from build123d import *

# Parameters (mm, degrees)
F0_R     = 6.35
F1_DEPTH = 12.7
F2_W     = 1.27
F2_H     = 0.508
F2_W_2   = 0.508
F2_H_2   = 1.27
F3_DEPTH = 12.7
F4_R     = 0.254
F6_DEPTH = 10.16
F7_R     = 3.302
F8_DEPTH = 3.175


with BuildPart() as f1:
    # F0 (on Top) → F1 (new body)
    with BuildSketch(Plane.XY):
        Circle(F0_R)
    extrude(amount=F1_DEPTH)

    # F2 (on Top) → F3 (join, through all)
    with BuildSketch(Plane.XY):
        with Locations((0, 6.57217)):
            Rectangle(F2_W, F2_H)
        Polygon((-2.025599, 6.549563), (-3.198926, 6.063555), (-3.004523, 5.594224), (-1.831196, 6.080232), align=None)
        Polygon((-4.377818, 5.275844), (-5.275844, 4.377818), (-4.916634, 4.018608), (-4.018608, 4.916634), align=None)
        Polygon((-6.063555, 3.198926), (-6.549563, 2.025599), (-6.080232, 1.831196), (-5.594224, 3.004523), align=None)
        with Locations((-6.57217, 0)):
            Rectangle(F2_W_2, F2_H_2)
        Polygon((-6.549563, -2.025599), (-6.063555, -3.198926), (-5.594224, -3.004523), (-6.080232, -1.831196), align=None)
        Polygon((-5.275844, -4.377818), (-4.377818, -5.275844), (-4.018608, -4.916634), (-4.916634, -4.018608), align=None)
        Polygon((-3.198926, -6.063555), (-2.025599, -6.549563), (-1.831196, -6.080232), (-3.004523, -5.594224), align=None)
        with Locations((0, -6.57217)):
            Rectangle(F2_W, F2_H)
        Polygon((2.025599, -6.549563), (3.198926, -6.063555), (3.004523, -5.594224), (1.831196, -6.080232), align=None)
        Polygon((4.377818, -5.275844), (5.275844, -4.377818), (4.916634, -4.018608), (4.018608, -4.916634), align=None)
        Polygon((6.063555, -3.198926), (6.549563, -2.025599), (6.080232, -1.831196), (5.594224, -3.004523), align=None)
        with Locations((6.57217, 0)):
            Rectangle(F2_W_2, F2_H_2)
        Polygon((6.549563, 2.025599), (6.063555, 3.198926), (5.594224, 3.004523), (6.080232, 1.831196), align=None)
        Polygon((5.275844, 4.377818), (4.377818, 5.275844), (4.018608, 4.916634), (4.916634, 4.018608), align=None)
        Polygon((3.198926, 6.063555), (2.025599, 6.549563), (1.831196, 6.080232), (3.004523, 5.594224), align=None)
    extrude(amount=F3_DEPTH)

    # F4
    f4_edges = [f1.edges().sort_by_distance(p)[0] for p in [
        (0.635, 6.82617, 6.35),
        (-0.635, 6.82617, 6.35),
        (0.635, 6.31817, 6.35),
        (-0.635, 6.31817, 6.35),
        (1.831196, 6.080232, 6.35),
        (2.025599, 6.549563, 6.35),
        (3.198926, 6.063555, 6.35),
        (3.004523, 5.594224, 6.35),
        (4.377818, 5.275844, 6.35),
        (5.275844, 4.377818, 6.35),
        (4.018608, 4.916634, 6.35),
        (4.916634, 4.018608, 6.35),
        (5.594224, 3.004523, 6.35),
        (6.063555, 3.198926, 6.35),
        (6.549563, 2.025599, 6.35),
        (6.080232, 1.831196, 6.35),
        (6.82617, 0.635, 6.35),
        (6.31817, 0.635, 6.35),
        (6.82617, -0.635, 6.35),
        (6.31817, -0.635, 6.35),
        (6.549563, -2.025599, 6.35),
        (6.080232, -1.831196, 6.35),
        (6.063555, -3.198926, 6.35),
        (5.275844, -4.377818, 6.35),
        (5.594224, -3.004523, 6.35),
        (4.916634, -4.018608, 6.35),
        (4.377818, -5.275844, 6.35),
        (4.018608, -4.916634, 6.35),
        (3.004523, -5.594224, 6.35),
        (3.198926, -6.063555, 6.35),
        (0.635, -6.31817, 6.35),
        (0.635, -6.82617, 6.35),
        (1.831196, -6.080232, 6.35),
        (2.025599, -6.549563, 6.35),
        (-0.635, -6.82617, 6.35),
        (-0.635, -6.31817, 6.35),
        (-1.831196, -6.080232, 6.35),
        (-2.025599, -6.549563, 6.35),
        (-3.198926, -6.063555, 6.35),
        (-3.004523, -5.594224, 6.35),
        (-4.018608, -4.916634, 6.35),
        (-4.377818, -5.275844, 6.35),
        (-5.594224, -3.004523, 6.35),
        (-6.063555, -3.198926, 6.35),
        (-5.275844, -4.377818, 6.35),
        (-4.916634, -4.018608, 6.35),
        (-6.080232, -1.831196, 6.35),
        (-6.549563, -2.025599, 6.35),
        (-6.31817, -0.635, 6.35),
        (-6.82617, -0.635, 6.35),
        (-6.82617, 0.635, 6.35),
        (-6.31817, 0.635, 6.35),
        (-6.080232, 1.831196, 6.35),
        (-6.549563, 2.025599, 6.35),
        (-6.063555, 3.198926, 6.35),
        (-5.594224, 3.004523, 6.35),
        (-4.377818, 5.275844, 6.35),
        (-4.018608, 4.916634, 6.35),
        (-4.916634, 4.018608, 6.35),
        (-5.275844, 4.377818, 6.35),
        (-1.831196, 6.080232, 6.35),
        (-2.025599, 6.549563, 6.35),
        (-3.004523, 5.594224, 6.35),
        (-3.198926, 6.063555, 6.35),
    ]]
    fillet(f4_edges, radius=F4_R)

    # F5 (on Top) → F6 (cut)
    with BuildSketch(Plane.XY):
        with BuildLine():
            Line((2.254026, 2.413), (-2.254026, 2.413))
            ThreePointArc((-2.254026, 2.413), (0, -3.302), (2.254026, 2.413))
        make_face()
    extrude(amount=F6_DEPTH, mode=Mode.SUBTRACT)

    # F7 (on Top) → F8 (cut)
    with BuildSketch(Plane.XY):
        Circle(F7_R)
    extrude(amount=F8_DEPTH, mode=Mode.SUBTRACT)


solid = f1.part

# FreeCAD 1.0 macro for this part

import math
import FreeCAD as App
import Part
import Sketcher
from FreeCAD import Vector
Q = App.Units.Quantity


def edges_at(feature, points):
    """Names of the edges that pass closest to the given points."""
    edges = feature.Shape.Edges
    near = lambda p: min(range(len(edges)), key=lambda i: edges[i].distToShape(Part.Vertex(*p))[0])
    return sorted({f"Edge{near(p) + 1}" for p in points})


def add_polygon(sketch, points):
    """Adds a closed chain of lines whose ends are joined by coincident constraints."""
    first, n = sketch.GeometryCount, len(points)
    for a, b in zip(points, points[1:] + points[:1]):
        sketch.addGeometry(Part.LineSegment(App.Vector(*a, 0), App.Vector(*b, 0)), False)
    for i in range(n):
        sketch.addConstraint(Sketcher.Constraint("Coincident", first + i, 2, first + (i + 1) % n, 1))

doc = App.newDocument("Part")
body = doc.addObject("PartDesign::Body", "Body")

# Sketch on XY plane
sketch1 = doc.addObject("Sketcher::SketchObject", "Sketch")
body.addObject(sketch1)
sketch1.AttachmentSupport = (doc.XY_Plane, [""])
sketch1.MapMode = "FlatFace"
sketch1.addGeometry(Part.Circle(Vector(0, 0, 0), Vector(0, 0, 1), 6), False)
sketch1.addConstraint([
    Sketcher.Constraint("Coincident", 0, 3, -1, 1),
    Sketcher.Constraint("Diameter", 0, Q("0.5 in")),
])
pad1 = doc.addObject("PartDesign::Pad", "Pad")
body.addObject(pad1)
pad1.Profile = sketch1
pad1.Length = Q("0.5 in")

# Sketch on XY plane
sketch2 = doc.addObject("Sketcher::SketchObject", "Sketch001")
body.addObject(sketch2)
sketch2.AttachmentSupport = (doc.XY_Plane, [""])
sketch2.MapMode = "FlatFace"
add_polygon(sketch2, [(-0.6, 6.8), (-0.6, 6.3), (0.6, 6.3), (0.6, 6.8)])  # lines 0-3
add_polygon(sketch2, [(-2, 6.5), (-3.2, 6.1), (-3, 5.6), (-1.8, 6.1)])  # lines 4-7
add_polygon(sketch2, [(-4.4, 5.3), (-5.3, 4.4), (-4.9, 4), (-4, 4.9)])  # lines 8-11
add_polygon(sketch2, [(-6.1, 3.2), (-6.5, 2), (-6.1, 1.8), (-5.6, 3)])  # lines 12-15
add_polygon(sketch2, [(-6.8, 0.6), (-6.8, -0.6), (-6.3, -0.6), (-6.3, 0.6)])  # lines 16-19
add_polygon(sketch2, [(-6.5, -2), (-6.1, -3.2), (-5.6, -3), (-6.1, -1.8)])  # lines 20-23
add_polygon(sketch2, [(-5.3, -4.4), (-4.4, -5.3), (-4, -4.9), (-4.9, -4)])  # lines 24-27
add_polygon(sketch2, [(-3.2, -6.1), (-2, -6.5), (-1.8, -6.1), (-3, -5.6)])  # lines 28-31
add_polygon(sketch2, [(-0.6, -6.3), (-0.6, -6.8), (0.6, -6.8), (0.6, -6.3)])  # lines 32-35
add_polygon(sketch2, [(2, -6.5), (3.2, -6.1), (3, -5.6), (1.8, -6.1)])  # lines 36-39
add_polygon(sketch2, [(4.4, -5.3), (5.3, -4.4), (4.9, -4), (4, -4.9)])  # lines 40-43
add_polygon(sketch2, [(6.1, -3.2), (6.5, -2), (6.1, -1.8), (5.6, -3)])  # lines 44-47
add_polygon(sketch2, [(6.3, 0.6), (6.3, -0.6), (6.8, -0.6), (6.8, 0.6)])  # lines 48-51
add_polygon(sketch2, [(6.5, 2), (6.1, 3.2), (5.6, 3), (6.1, 1.8)])  # lines 52-55
add_polygon(sketch2, [(5.3, 4.4), (4.4, 5.3), (4, 4.9), (4.9, 4)])  # lines 56-59
add_polygon(sketch2, [(3.2, 6.1), (2, 6.5), (1.8, 6.1), (3, 5.6)])  # lines 60-63
sketch2.addConstraint([
    Sketcher.Constraint("Vertical", 0),
    Sketcher.Constraint("Horizontal", 1),
    Sketcher.Constraint("Vertical", 2),
    Sketcher.Constraint("Horizontal", 3),
    Sketcher.Constraint("Vertical", 16),
    Sketcher.Constraint("Horizontal", 17),
    Sketcher.Constraint("Vertical", 18),
    Sketcher.Constraint("Horizontal", 19),
    Sketcher.Constraint("Vertical", 32),
    Sketcher.Constraint("Horizontal", 33),
    Sketcher.Constraint("Vertical", 34),
    Sketcher.Constraint("Horizontal", 35),
    Sketcher.Constraint("Vertical", 48),
    Sketcher.Constraint("Horizontal", 49),
    Sketcher.Constraint("Vertical", 50),
    Sketcher.Constraint("Horizontal", 51),
    Sketcher.Constraint("Symmetric", 2, 2, 32, 2, -1, 1),
    Sketcher.Constraint("Symmetric", 0, 2, 34, 2, -1, 1),
    Sketcher.Constraint("Symmetric", 4, 2, 36, 2, -1, 1),
    Sketcher.Constraint("Symmetric", 5, 2, 37, 2, -1, 1),
    Sketcher.Constraint("Symmetric", 6, 2, 38, 2, -1, 1),
    Sketcher.Constraint("Symmetric", 7, 2, 39, 2, -1, 1),
    Sketcher.Constraint("Symmetric", 8, 2, 40, 2, -1, 1),
    Sketcher.Constraint("Symmetric", 9, 2, 41, 2, -1, 1),
    Sketcher.Constraint("Symmetric", 10, 2, 42, 2, -1, 1),
    Sketcher.Constraint("Symmetric", 11, 2, 43, 2, -1, 1),
    Sketcher.Constraint("Symmetric", 12, 2, 44, 2, -1, 1),
    Sketcher.Constraint("Symmetric", 13, 2, 45, 2, -1, 1),
    Sketcher.Constraint("Symmetric", 14, 2, 46, 2, -1, 1),
    Sketcher.Constraint("Symmetric", 15, 2, 47, 2, -1, 1),
    Sketcher.Constraint("Symmetric", 18, 2, 48, 2, -1, 1),
    Sketcher.Constraint("Symmetric", 16, 2, 50, 2, -1, 1),
    Sketcher.Constraint("Symmetric", 20, 2, 52, 2, -1, 1),
    Sketcher.Constraint("Symmetric", 21, 2, 53, 2, -1, 1),
    Sketcher.Constraint("Symmetric", 22, 2, 54, 2, -1, 1),
    Sketcher.Constraint("Symmetric", 23, 2, 55, 2, -1, 1),
    Sketcher.Constraint("Symmetric", 24, 2, 56, 2, -1, 1),
    Sketcher.Constraint("Symmetric", 25, 2, 57, 2, -1, 1),
    Sketcher.Constraint("Symmetric", 26, 2, 58, 2, -1, 1),
    Sketcher.Constraint("Symmetric", 27, 2, 59, 2, -1, 1),
    Sketcher.Constraint("Symmetric", 28, 2, 60, 2, -1, 1),
    Sketcher.Constraint("Symmetric", 29, 2, 61, 2, -1, 1),
    Sketcher.Constraint("Symmetric", 30, 2, 62, 2, -1, 1),
    Sketcher.Constraint("Symmetric", 31, 2, 63, 2, -1, 1),
    Sketcher.Constraint("Symmetric", 31, 2, 36, 2, -2),
    Sketcher.Constraint("Symmetric", 30, 2, 37, 2, -2),
    Sketcher.Constraint("Symmetric", 29, 2, 38, 2, -2),
    Sketcher.Constraint("Symmetric", 28, 2, 39, 2, -2),
    Sketcher.Constraint("Symmetric", 27, 2, 40, 2, -2),
    Sketcher.Constraint("Symmetric", 26, 2, 41, 2, -2),
    Sketcher.Constraint("Symmetric", 25, 2, 42, 2, -2),
    Sketcher.Constraint("Symmetric", 24, 2, 43, 2, -2),
    Sketcher.Constraint("Symmetric", 23, 2, 44, 2, -2),
    Sketcher.Constraint("Symmetric", 22, 2, 45, 2, -2),
    Sketcher.Constraint("Symmetric", 21, 2, 46, 2, -2),
    Sketcher.Constraint("Symmetric", 20, 2, 47, 2, -2),
    Sketcher.Constraint("Perpendicular", 4, 5),
    Sketcher.Constraint("Perpendicular", 5, 6),
    Sketcher.Constraint("Perpendicular", 6, 7),
    Sketcher.Constraint("Perpendicular", 8, 9),
    Sketcher.Constraint("Perpendicular", 9, 10),
    Sketcher.Constraint("Perpendicular", 10, 11),
    Sketcher.Constraint("Perpendicular", 12, 13),
    Sketcher.Constraint("Perpendicular", 13, 14),
    Sketcher.Constraint("Perpendicular", 14, 15),
    Sketcher.Constraint("Parallel", 7, 20),
    Sketcher.Constraint("Parallel", 11, 24),
    Sketcher.Constraint("Horizontal", 17, 2, 48, 2),
    Sketcher.Constraint("Vertical", 3, 2, 32, 2),
    Sketcher.Constraint("Equal", 51, 0),
    Sketcher.Constraint("Equal", 35, 16),
    Sketcher.Constraint("Equal", 6, 8),
    Sketcher.Constraint("Equal", 7, 9),
    Sketcher.Constraint("Equal", 10, 12),
    Sketcher.Constraint("Equal", 11, 13),
    Sketcher.Constraint("DistanceX", 1, 1, 1, 2, Q("0.05 in")),
    Sketcher.Constraint("DistanceX", 17, 1, 17, 2, Q("0.02 in")),
    Sketcher.Constraint("Angle", 4, Q("-157.499998 deg")),
    Sketcher.Constraint("Distance", 4, Q("0.05 in")),
    Sketcher.Constraint("Distance", 5, Q("0.02 in")),
    Sketcher.Constraint("DistanceX", 7, 2, -1, 1, Q("2.025599 mm")),
    Sketcher.Constraint("DistanceY", -1, 1, 12, 2, Q("2.025599 mm")),
    Sketcher.Constraint("DistanceY", -1, 1, 0, 2, Q("6.31817 mm")),
    Sketcher.Constraint("DistanceY", -1, 1, 6, 2, Q("6.080232 mm")),
    Sketcher.Constraint("DistanceY", -1, 1, 8, 2, Q("4.377818 mm")),
    Sketcher.Constraint("DistanceX", 10, 2, -1, 1, Q("4.018608 mm")),
    Sketcher.Constraint("DistanceX", 13, 2, -1, 1, Q("6.080232 mm")),
    Sketcher.Constraint("DistanceX", 16, 2, -1, 1, Q("6.82617 mm")),
])
pad2 = doc.addObject("PartDesign::Pad", "Pad001")
body.addObject(pad2)
pad2.Profile = sketch2
pad2.Type = "UpToLast"
doc.recompute()

fillet = doc.addObject("PartDesign::Fillet", "Fillet")
body.addObject(fillet)
fillet.Base = (pad2, edges_at(pad2, [
    (0.635, 6.826, 6.35),
    (-0.635, 6.826, 6.35),
    (0.635, 6.318, 6.35),
    (-0.635, 6.318, 6.35),
    (1.831, 6.08, 6.35),
    (2.026, 6.55, 6.35),
    (3.199, 6.064, 6.35),
    (3.005, 5.594, 6.35),
    (4.378, 5.276, 6.35),
    (5.276, 4.378, 6.35),
    (4.019, 4.917, 6.35),
    (4.917, 4.019, 6.35),
    (5.594, 3.005, 6.35),
    (6.064, 3.199, 6.35),
    (6.55, 2.026, 6.35),
    (6.08, 1.831, 6.35),
    (6.826, 0.635, 6.35),
    (6.318, 0.635, 6.35),
    (6.826, -0.635, 6.35),
    (6.318, -0.635, 6.35),
    (6.55, -2.026, 6.35),
    (6.08, -1.831, 6.35),
    (6.064, -3.199, 6.35),
    (5.276, -4.378, 6.35),
    (5.594, -3.005, 6.35),
    (4.917, -4.019, 6.35),
    (4.378, -5.276, 6.35),
    (4.019, -4.917, 6.35),
    (3.005, -5.594, 6.35),
    (3.199, -6.064, 6.35),
    (0.635, -6.318, 6.35),
    (0.635, -6.826, 6.35),
    (1.831, -6.08, 6.35),
    (2.026, -6.55, 6.35),
    (-0.635, -6.826, 6.35),
    (-0.635, -6.318, 6.35),
    (-1.831, -6.08, 6.35),
    (-2.026, -6.55, 6.35),
    (-3.199, -6.064, 6.35),
    (-3.005, -5.594, 6.35),
    (-4.019, -4.917, 6.35),
    (-4.378, -5.276, 6.35),
    (-5.594, -3.005, 6.35),
    (-6.064, -3.199, 6.35),
    (-5.276, -4.378, 6.35),
    (-4.917, -4.019, 6.35),
    (-6.08, -1.831, 6.35),
    (-6.55, -2.026, 6.35),
    (-6.318, -0.635, 6.35),
    (-6.826, -0.635, 6.35),
    (-6.826, 0.635, 6.35),
    (-6.318, 0.635, 6.35),
    (-6.08, 1.831, 6.35),
    (-6.55, 2.026, 6.35),
    (-6.064, 3.199, 6.35),
    (-5.594, 3.005, 6.35),
    (-4.378, 5.276, 6.35),
    (-4.019, 4.917, 6.35),
    (-4.917, 4.019, 6.35),
    (-5.276, 4.378, 6.35),
    (-1.831, 6.08, 6.35),
    (-2.026, 6.55, 6.35),
    (-3.005, 5.594, 6.35),
    (-3.199, 6.064, 6.35),
]))
fillet.Radius = Q("0.01 in")

# Sketch on XY plane
sketch3 = doc.addObject("Sketcher::SketchObject", "Sketch002")
body.addObject(sketch3)
sketch3.AttachmentSupport = (doc.XY_Plane, [""])
sketch3.MapMode = "FlatFace"
sketch3.addGeometry([
    Part.LineSegment(Vector(2.3, 2.4, 0), Vector(-2.3, 2.4, 0)),
    Part.ArcOfCircle(Part.Circle(Vector(0, 0, 0), Vector(0, 0, 1), 3.3), math.radians(133), math.radians(407)),
], False)
sketch3.addConstraint([
    Sketcher.Constraint("Coincident", 0, 1, 1, 2),
    Sketcher.Constraint("Coincident", 1, 1, 0, 2),
    Sketcher.Constraint("Horizontal", 0),
    Sketcher.Constraint("Coincident", 1, 3, -1, 1),
    Sketcher.Constraint("Radius", 1, Q("0.13 in")),
    Sketcher.Constraint("DistanceY", -1, 1, 0, 1, Q("0.095 in")),
])
pocket1 = doc.addObject("PartDesign::Pocket", "Pocket")
body.addObject(pocket1)
pocket1.Profile = sketch3
pocket1.Length = Q("0.4 in")
pocket1.Reversed = True

# Sketch on XY plane
sketch4 = doc.addObject("Sketcher::SketchObject", "Sketch003")
body.addObject(sketch4)
sketch4.AttachmentSupport = (doc.XY_Plane, [""])
sketch4.MapMode = "FlatFace"
sketch4.addGeometry(Part.Circle(Vector(0, 0, 0), Vector(0, 0, 1), 3.3), False)
sketch4.addConstraint([
    Sketcher.Constraint("Coincident", 0, 3, -1, 1),
    Sketcher.Constraint("Diameter", 0, Q("0.26 in")),
])
pocket2 = doc.addObject("PartDesign::Pocket", "Pocket001")
body.addObject(pocket2)
pocket2.Profile = sketch4
pocket2.Length = Q("0.125 in")
pocket2.Reversed = True

doc.recompute()
